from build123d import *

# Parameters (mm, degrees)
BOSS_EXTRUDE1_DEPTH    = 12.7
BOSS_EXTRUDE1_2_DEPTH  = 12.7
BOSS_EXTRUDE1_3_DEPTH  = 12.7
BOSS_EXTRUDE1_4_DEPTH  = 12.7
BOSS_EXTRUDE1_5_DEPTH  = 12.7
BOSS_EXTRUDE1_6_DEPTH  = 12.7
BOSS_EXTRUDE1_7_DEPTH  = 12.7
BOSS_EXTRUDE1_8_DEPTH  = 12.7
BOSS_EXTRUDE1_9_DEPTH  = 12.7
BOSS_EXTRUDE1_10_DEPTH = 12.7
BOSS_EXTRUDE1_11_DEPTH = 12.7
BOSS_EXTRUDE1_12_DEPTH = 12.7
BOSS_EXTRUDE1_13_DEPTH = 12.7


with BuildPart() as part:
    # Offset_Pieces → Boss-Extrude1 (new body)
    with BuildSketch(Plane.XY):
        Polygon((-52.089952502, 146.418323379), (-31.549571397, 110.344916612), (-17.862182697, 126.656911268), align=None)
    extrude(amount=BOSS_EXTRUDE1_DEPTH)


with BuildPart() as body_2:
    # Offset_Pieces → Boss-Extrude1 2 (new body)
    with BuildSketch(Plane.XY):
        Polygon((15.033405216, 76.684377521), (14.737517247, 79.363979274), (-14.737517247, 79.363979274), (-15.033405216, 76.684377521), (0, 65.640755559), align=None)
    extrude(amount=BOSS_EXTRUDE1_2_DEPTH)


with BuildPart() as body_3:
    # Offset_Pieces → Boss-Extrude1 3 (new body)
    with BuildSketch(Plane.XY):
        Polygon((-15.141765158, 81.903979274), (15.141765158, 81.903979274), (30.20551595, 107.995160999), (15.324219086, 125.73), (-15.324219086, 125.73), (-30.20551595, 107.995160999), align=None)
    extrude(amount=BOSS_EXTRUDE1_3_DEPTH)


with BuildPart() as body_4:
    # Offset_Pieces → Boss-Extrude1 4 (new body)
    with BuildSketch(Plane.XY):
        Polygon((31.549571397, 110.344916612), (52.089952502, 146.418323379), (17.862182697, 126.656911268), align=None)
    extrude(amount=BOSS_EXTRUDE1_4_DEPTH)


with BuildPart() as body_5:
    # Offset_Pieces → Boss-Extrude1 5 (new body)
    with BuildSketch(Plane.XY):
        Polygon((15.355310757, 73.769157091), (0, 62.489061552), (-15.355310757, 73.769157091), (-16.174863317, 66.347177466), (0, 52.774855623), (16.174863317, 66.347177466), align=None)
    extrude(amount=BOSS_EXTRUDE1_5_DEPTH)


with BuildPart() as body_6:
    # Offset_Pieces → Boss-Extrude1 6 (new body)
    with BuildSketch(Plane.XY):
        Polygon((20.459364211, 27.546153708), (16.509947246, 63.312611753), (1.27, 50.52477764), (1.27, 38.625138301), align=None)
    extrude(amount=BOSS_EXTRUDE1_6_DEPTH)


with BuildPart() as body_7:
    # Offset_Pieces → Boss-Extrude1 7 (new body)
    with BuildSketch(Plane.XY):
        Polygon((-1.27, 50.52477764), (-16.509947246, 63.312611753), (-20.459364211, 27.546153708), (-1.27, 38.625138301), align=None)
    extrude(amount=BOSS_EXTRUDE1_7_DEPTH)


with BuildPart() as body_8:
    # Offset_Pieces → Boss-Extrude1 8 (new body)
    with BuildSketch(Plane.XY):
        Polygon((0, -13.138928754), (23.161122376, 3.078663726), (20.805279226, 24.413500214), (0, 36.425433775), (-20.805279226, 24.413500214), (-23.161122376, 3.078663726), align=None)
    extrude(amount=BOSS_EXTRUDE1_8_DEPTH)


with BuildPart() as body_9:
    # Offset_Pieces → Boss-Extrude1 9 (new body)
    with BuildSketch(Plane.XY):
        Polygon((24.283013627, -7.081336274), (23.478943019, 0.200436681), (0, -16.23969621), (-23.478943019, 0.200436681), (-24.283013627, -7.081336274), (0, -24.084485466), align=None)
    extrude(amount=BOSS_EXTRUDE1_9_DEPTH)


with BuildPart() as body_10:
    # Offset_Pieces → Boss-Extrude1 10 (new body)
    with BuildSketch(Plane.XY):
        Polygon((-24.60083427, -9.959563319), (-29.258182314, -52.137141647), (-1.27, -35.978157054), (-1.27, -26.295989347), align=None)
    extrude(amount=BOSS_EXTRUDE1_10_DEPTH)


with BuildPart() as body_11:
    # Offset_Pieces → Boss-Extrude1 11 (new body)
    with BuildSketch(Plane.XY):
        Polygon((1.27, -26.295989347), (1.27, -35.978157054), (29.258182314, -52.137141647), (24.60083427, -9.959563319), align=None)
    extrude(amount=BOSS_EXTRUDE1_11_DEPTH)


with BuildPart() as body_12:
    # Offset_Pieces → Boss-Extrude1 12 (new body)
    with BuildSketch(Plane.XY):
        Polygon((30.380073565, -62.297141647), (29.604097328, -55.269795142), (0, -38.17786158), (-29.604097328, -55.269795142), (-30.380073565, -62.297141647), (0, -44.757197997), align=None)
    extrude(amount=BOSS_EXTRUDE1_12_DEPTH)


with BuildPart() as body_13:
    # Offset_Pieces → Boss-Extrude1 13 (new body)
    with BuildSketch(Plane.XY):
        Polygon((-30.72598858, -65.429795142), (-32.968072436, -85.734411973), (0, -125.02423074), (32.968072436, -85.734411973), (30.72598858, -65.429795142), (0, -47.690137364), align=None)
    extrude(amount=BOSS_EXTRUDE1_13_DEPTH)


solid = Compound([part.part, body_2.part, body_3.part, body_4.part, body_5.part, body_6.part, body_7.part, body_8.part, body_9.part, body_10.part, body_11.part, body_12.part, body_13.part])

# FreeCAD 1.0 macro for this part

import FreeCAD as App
import Part
import Sketcher

V = App.Vector
Q = App.Units.Quantity


def add_polygon(sketch, points):
    """Adds a closed chain of lines whose ends are joined by coincident constraints."""
    first, n = sketch.GeometryCount, len(points)
    for a, b in zip(points, points[1:] + points[:1]):
        sketch.addGeometry(Part.LineSegment(App.Vector(*a, 0), App.Vector(*b, 0)), False)
    for i in range(n):
        sketch.addConstraint(Sketcher.Constraint("Coincident", first + i, 2, first + (i + 1) % n, 1))

doc = App.newDocument("Part")
body = doc.addObject("PartDesign::Body", "Body")

# Sketch on XY plane
sketch1 = doc.addObject("Sketcher::SketchObject", "Sketch")
body.addObject(sketch1)
sketch1.AttachmentSupport = (doc.XY_Plane, [""])
sketch1.MapMode = "FlatFace"
add_polygon(sketch1, [(-52, 146), (-32, 110), (-18, 127)])  # lines 0-2
sketch1.addConstraint([
    Sketcher.Constraint("Angle", 1, Q("50 deg")),
    Sketcher.Constraint("Angle", 2, Q("150 deg")),
    Sketcher.Constraint("Distance", 0, Q("41.511419 mm")),
    Sketcher.Constraint("DistanceX", 0, 2, -1, 1, Q("31.549571 mm")),
    Sketcher.Constraint("DistanceY", -1, 1, 1, 2, Q("126.656911 mm")),
    Sketcher.Constraint("DistanceX", 0, 2, 1, 2, Q("13.687389 mm")),
])
pad1 = doc.addObject("PartDesign::Pad", "Pad")
body.addObject(pad1)
pad1.Profile = sketch1
pad1.Length = Q("0.5 in")
body2 = doc.addObject("PartDesign::Body", "Body001")

# Sketch on XY plane
sketch2 = doc.addObject("Sketcher::SketchObject", "Sketch001")
body2.addObject(sketch2)
sketch2.AttachmentSupport = (doc.getObject("XY_Plane001"), [""])
sketch2.MapMode = "FlatFace"
add_polygon(sketch2, [(15, 76.7), (14.7, 79.4), (-14.7, 79.4), (-15, 76.7), (0, 65.6)])  # lines 0-4
sketch2.addConstraint([
    Sketcher.Constraint("Horizontal", 1),
    Sketcher.Constraint("Symmetric", 2, 2, 4, 2, -2),
    Sketcher.Constraint("PointOnObject", 3, 2, -2),
    Sketcher.Constraint("Equal", 0, 2),
    Sketcher.Constraint("DistanceY", 2, 2, 1, 2, Q("2.679602 mm")),
    Sketcher.Constraint("Distance", 0, Q("2.695889 mm")),
    Sketcher.Constraint("DistanceX", 1, 2, 1, 1, Q("29.475034 mm")),
    Sketcher.Constraint("DistanceY", -1, 1, 0, 2, Q("79.363979 mm")),
    Sketcher.Constraint("DistanceY", 3, 2, 2, 2, Q("11.043622 mm")),
])
pad2 = doc.addObject("PartDesign::Pad", "Pad001")
body2.addObject(pad2)
pad2.Profile = sketch2
pad2.Length = Q("0.5 in")
body3 = doc.addObject("PartDesign::Body", "Body002")

# Sketch on XY plane
sketch3 = doc.addObject("Sketcher::SketchObject", "Sketch002")
body3.addObject(sketch3)
sketch3.AttachmentSupport = (doc.getObject("XY_Plane002"), [""])
sketch3.MapMode = "FlatFace"
add_polygon(sketch3, [(-15, 82), (15, 82), (30, 108), (15, 126), (-15, 126), (-30, 108)])  # lines 0-5
sketch3.addConstraint([
    Sketcher.Constraint("Horizontal", 0),
    Sketcher.Constraint("Horizontal", 3),
    Sketcher.Constraint("Symmetric", 1, 2, 4, 2, -2),
    Sketcher.Constraint("Equal", 2, 4),
    Sketcher.Constraint("Equal", 1, 5),
    Sketcher.Constraint("Angle", 1, Q("60 deg")),
    Sketcher.Constraint("Angle", 2, Q("130 deg")),
    Sketcher.Constraint("DistanceY", -1, 1, 2, 2, Q("4.95 in")),
    Sketcher.Constraint("Distance", 1, Q("30.127502 mm")),
    Sketcher.Constraint("DistanceX", 0, 1, 0, 2, Q("30.28353 mm")),
    Sketcher.Constraint("DistanceX", 3, 2, 3, 1, Q("30.648438 mm")),
])
pad3 = doc.addObject("PartDesign::Pad", "Pad002")
body3.addObject(pad3)
pad3.Profile = sketch3
pad3.Length = Q("0.5 in")
body4 = doc.addObject("PartDesign::Body", "Body003")

# Sketch on XY plane
sketch4 = doc.addObject("Sketcher::SketchObject", "Sketch003")
body4.addObject(sketch4)
sketch4.AttachmentSupport = (doc.getObject("XY_Plane003"), [""])
sketch4.MapMode = "FlatFace"
add_polygon(sketch4, [(32, 110), (52, 146), (18, 127)])  # lines 0-2
sketch4.addConstraint([
    Sketcher.Constraint("Angle", 1, Q("-150 deg")),
    Sketcher.Constraint("Angle", 2, Q("-50 deg")),
    Sketcher.Constraint("Distance", 0, Q("41.511419 mm")),
    Sketcher.Constraint("DistanceY", -1, 1, 1, 2, Q("126.656911 mm")),
    Sketcher.Constraint("DistanceX", -1, 1, 2, 2, Q("31.549571 mm")),
    Sketcher.Constraint("DistanceX", 1, 2, 0, 2, Q("34.22777 mm")),
])
pad4 = doc.addObject("PartDesign::Pad", "Pad003")
body4.addObject(pad4)
pad4.Profile = sketch4
pad4.Length = Q("0.5 in")
body5 = doc.addObject("PartDesign::Body", "Body004")

# Sketch on XY plane
sketch5 = doc.addObject("Sketcher::SketchObject", "Sketch004")
body5.addObject(sketch5)
sketch5.AttachmentSupport = (doc.getObject("XY_Plane004"), [""])
sketch5.MapMode = "FlatFace"
add_polygon(sketch5, [(15, 74), (0, 62), (-15, 74), (-16, 66), (0, 53), (16, 66)])  # lines 0-5
sketch5.addConstraint([
    Sketcher.Constraint("Symmetric", 2, 2, 4, 2, -2),
    Sketcher.Constraint("Symmetric", 1, 2, 5, 2, -2),
    Sketcher.Constraint("PointOnObject", 0, 2, -2),
    Sketcher.Constraint("PointOnObject", 3, 2, -2),
    Sketcher.Constraint("Angle", 3, Q("-40 deg")),
    Sketcher.Constraint("DistanceY", 3, 2, 1, 2, Q("20.994301 mm")),
    Sketcher.Constraint("Distance", 2, Q("7.467091 mm")),
    Sketcher.Constraint("DistanceY", -1, 1, 0, 2, Q("62.489062 mm")),
    Sketcher.Constraint("DistanceX", 1, 2, -1, 1, Q("15.355311 mm")),
    Sketcher.Constraint("Distance", 0, Q("19.053244 mm")),
])
pad5 = doc.addObject("PartDesign::Pad", "Pad004")
body5.addObject(pad5)
pad5.Profile = sketch5
pad5.Length = Q("0.5 in")
body6 = doc.addObject("PartDesign::Body", "Body005")

# Sketch on XY plane
sketch6 = doc.addObject("Sketcher::SketchObject", "Sketch005")
body6.addObject(sketch6)
sketch6.AttachmentSupport = (doc.getObject("XY_Plane005"), [""])
sketch6.MapMode = "FlatFace"
add_polygon(sketch6, [(20, 28), (17, 63), (1, 51), (1, 39)])  # lines 0-3
sketch6.addConstraint([
    Sketcher.Constraint("Vertical", 2),
    Sketcher.Constraint("Angle", 1, Q("-140 deg")),
    Sketcher.Constraint("Angle", 3, Q("-30 deg")),
    Sketcher.Constraint("DistanceX", -1, 1, 1, 2, Q("0.05 in")),
    Sketcher.Constraint("DistanceY", 2, 2, 2, 1, Q("11.899639 mm")),
    Sketcher.Constraint("Distance", 0, Q("35.983849 mm")),
    Sketcher.Constraint("Distance", 1, Q("19.894338 mm")),
    Sketcher.Constraint("DistanceY", -1, 1, 0, 2, Q("63.312612 mm")),
])
pad6 = doc.addObject("PartDesign::Pad", "Pad005")
body6.addObject(pad6)
pad6.Profile = sketch6
pad6.Length = Q("0.5 in")
body7 = doc.addObject("PartDesign::Body", "Body006")

# Sketch on XY plane
sketch7 = doc.addObject("Sketcher::SketchObject", "Sketch006")
body7.addObject(sketch7)
sketch7.AttachmentSupport = (doc.getObject("XY_Plane006"), [""])
sketch7.MapMode = "FlatFace"
add_polygon(sketch7, [(-1, 51), (-17, 63), (-20, 28), (-1, 39)])  # lines 0-3
sketch7.addConstraint([
    Sketcher.Constraint("Vertical", 3),
    Sketcher.Constraint("Angle", 0, Q("140 deg")),
    Sketcher.Constraint("Angle", 2, Q("30 deg")),
    Sketcher.Constraint("DistanceX", 2, 2, -1, 1, Q("0.05 in")),
    Sketcher.Constraint("DistanceY", 3, 1, 3, 2, Q("11.899639 mm")),
    Sketcher.Constraint("Distance", 0, Q("19.894338 mm")),
    Sketcher.Constraint("Distance", 1, Q("35.983849 mm")),
    Sketcher.Constraint("DistanceY", -1, 1, 0, 2, Q("63.312612 mm")),
])
pad7 = doc.addObject("PartDesign::Pad", "Pad006")
body7.addObject(pad7)
pad7.Profile = sketch7
pad7.Length = Q("0.5 in")
body8 = doc.addObject("PartDesign::Body", "Body007")

# Sketch on XY plane
sketch8 = doc.addObject("Sketcher::SketchObject", "Sketch007")
body8.addObject(sketch8)
sketch8.AttachmentSupport = (doc.getObject("XY_Plane007"), [""])
sketch8.MapMode = "FlatFace"
add_polygon(sketch8, [(0, -13), (23, 3), (21, 24), (0, 36), (-21, 24), (-23, 3)])  # lines 0-5
sketch8.addConstraint([
    Sketcher.Constraint("Symmetric", 1, 2, 3, 2, -2),
    Sketcher.Constraint("Symmetric", 0, 2, 4, 2, -2),
    Sketcher.Constraint("PointOnObject", 2, 2, -2),
    Sketcher.Constraint("PointOnObject", 5, 2, -2),
    Sketcher.Constraint("Angle", 0, Q("35 deg")),
    Sketcher.Constraint("Angle", 2, Q("150 deg")),
    Sketcher.Constraint("DistanceY", -1, 1, 1, 2, Q("24.4135 mm")),
    Sketcher.Constraint("DistanceX", 3, 2, 0, 2, Q("43.966402 mm")),
    Sketcher.Constraint("Distance", 0, Q("28.27451 mm")),
    Sketcher.Constraint("Distance", 1, Q("21.464511 mm")),
])
pad8 = doc.addObject("PartDesign::Pad", "Pad007")
body8.addObject(pad8)
pad8.Profile = sketch8
pad8.Length = Q("0.5 in")
body9 = doc.addObject("PartDesign::Body", "Body008")

# Sketch on XY plane
sketch9 = doc.addObject("Sketcher::SketchObject", "Sketch008")
body9.addObject(sketch9)
sketch9.AttachmentSupport = (doc.getObject("XY_Plane008"), [""])
sketch9.MapMode = "FlatFace"
add_polygon(sketch9, [(24, -7), (23, 0), (0, -16), (-23, 0), (-24, -7), (0, -24)])  # lines 0-5
sketch9.addConstraint([
    Sketcher.Constraint("Symmetric", 0, 2, 2, 2, -2),
    Sketcher.Constraint("Symmetric", 3, 2, 5, 2, -2),
    Sketcher.Constraint("PointOnObject", 1, 2, -2),
    Sketcher.Constraint("PointOnObject", 4, 2, -2),
    Sketcher.Constraint("Parallel", 2, 4),
    Sketcher.Constraint("Angle", 1, Q("-145 deg")),
    Sketcher.Constraint("DistanceX", 3, 2, 2, 2, Q("0.804071 mm")),
    Sketcher.Constraint("DistanceY", 1, 2, 3, 2, Q("9.15836 mm")),
    Sketcher.Constraint("DistanceY", 4, 2, 1, 2, Q("7.844789 mm")),
    Sketcher.Constraint("DistanceY", -1, 1, 0, 2, Q("0.200437 mm")),
])
pad9 = doc.addObject("PartDesign::Pad", "Pad008")
body9.addObject(pad9)
pad9.Profile = sketch9
pad9.Length = Q("0.5 in")
body10 = doc.addObject("PartDesign::Body", "Body009")

# Sketch on XY plane
sketch10 = doc.addObject("Sketcher::SketchObject", "Sketch009")
body10.addObject(sketch10)
sketch10.AttachmentSupport = (doc.getObject("XY_Plane009"), [""])
sketch10.MapMode = "FlatFace"
add_polygon(sketch10, [(-25, -10), (-29, -52), (-1, -36), (-1, -26)])  # lines 0-3
sketch10.addConstraint([
    Sketcher.Constraint("Vertical", 2),
    Sketcher.Constraint("Angle", 1, Q("30 deg")),
    Sketcher.Constraint("Angle", 3, Q("145 deg")),
    Sketcher.Constraint("DistanceX", 1, 2, -1, 1, Q("0.05 in")),
    Sketcher.Constraint("Distance", 1, Q("32.317969 mm")),
    Sketcher.Constraint("Distance", 3, Q("28.48169 mm")),
    Sketcher.Constraint("DistanceY", 2, 1, 2, 2, Q("9.682168 mm")),
    Sketcher.Constraint("DistanceY", 0, 2, -1, 1, Q("52.137142 mm")),
])
pad10 = doc.addObject("PartDesign::Pad", "Pad009")
body10.addObject(pad10)
pad10.Profile = sketch10
pad10.Length = Q("0.5 in")
body11 = doc.addObject("PartDesign::Body", "Body010")

# Sketch on XY plane
sketch11 = doc.addObject("Sketcher::SketchObject", "Sketch010")
body11.addObject(sketch11)
sketch11.AttachmentSupport = (doc.getObject("XY_Plane010"), [""])
sketch11.MapMode = "FlatFace"
add_polygon(sketch11, [(1, -26), (1, -36), (29, -52), (25, -10)])  # lines 0-3
sketch11.addConstraint([
    Sketcher.Constraint("Vertical", 0),
    Sketcher.Constraint("Angle", 1, Q("-30 deg")),
    Sketcher.Constraint("Angle", 3, Q("-145 deg")),
    Sketcher.Constraint("DistanceX", -1, 1, 0, 2, Q("0.05 in")),
    Sketcher.Constraint("Distance", 1, Q("32.317969 mm")),
    Sketcher.Constraint("Distance", 3, Q("28.48169 mm")),
    Sketcher.Constraint("DistanceY", 0, 2, 0, 1, Q("9.682168 mm")),
    Sketcher.Constraint("DistanceY", 1, 2, -1, 1, Q("52.137142 mm")),
])
pad11 = doc.addObject("PartDesign::Pad", "Pad010")
body11.addObject(pad11)
pad11.Profile = sketch11
pad11.Length = Q("0.5 in")
body12 = doc.addObject("PartDesign::Body", "Body011")

# Sketch on XY plane
sketch12 = doc.addObject("Sketcher::SketchObject", "Sketch011")
body12.addObject(sketch12)
sketch12.AttachmentSupport = (doc.getObject("XY_Plane011"), [""])
sketch12.MapMode = "FlatFace"
add_polygon(sketch12, [(30, -62), (30, -55), (0, -38), (-30, -55), (-30, -62), (0, -45)])  # lines 0-5
sketch12.addConstraint([
    Sketcher.Constraint("Symmetric", 0, 2, 2, 2, -2),
    Sketcher.Constraint("Symmetric", 3, 2, 5, 2, -2),
    Sketcher.Constraint("PointOnObject", 1, 2, -2),
    Sketcher.Constraint("PointOnObject", 4, 2, -2),
    Sketcher.Constraint("Parallel", 2, 4),
    Sketcher.Constraint("Angle", 1, Q("150 deg")),
    Sketcher.Constraint("Distance", 0, Q("7.070059 mm")),
    Sketcher.Constraint("DistanceY", 1, 2, -1, 1, Q("38.177862 mm")),
    Sketcher.Constraint("DistanceY", 3, 2, -1, 1, Q("62.297142 mm")),
    Sketcher.Constraint("DistanceX", 3, 2, 0, 2, Q("59.984171 mm")),
])
pad12 = doc.addObject("PartDesign::Pad", "Pad011")
body12.addObject(pad12)
pad12.Profile = sketch12
pad12.Length = Q("0.5 in")
body13 = doc.addObject("PartDesign::Body", "Body012")

# Sketch on XY plane
sketch13 = doc.addObject("Sketcher::SketchObject", "Sketch012")
body13.addObject(sketch13)
sketch13.AttachmentSupport = (doc.getObject("XY_Plane012"), [""])
sketch13.MapMode = "FlatFace"
add_polygon(sketch13, [(-31, -65), (-33, -86), (0, -125), (33, -86), (31, -65), (0, -48)])  # lines 0-5
sketch13.addConstraint([
    Sketcher.Constraint("Symmetric", 0, 2, 2, 2, -2),
    Sketcher.Constraint("Symmetric", 3, 2, 5, 2, -2),
    Sketcher.Constraint("PointOnObject", 1, 2, -2),
    Sketcher.Constraint("PointOnObject", 4, 2, -2),
    Sketcher.Constraint("Angle", 1, Q("-50 deg")),
    Sketcher.Constraint("Angle", 4, Q("150 deg")),
    Sketcher.Constraint("Distance", 0, Q("20.42803 mm")),
    Sketcher.Constraint("DistanceY", 0, 2, -1, 1, Q("85.734412 mm")),
    Sketcher.Constraint("DistanceY", 1, 2, -1, 1, Q("125.024231 mm")),
    Sketcher.Constraint("DistanceX", -1, 1, 3, 2, Q("30.725989 mm")),
])
pad13 = doc.addObject("PartDesign::Pad", "Pad012")
body13.addObject(pad13)
pad13.Profile = sketch13
pad13.Length = Q("0.5 in")

doc.recompute()
